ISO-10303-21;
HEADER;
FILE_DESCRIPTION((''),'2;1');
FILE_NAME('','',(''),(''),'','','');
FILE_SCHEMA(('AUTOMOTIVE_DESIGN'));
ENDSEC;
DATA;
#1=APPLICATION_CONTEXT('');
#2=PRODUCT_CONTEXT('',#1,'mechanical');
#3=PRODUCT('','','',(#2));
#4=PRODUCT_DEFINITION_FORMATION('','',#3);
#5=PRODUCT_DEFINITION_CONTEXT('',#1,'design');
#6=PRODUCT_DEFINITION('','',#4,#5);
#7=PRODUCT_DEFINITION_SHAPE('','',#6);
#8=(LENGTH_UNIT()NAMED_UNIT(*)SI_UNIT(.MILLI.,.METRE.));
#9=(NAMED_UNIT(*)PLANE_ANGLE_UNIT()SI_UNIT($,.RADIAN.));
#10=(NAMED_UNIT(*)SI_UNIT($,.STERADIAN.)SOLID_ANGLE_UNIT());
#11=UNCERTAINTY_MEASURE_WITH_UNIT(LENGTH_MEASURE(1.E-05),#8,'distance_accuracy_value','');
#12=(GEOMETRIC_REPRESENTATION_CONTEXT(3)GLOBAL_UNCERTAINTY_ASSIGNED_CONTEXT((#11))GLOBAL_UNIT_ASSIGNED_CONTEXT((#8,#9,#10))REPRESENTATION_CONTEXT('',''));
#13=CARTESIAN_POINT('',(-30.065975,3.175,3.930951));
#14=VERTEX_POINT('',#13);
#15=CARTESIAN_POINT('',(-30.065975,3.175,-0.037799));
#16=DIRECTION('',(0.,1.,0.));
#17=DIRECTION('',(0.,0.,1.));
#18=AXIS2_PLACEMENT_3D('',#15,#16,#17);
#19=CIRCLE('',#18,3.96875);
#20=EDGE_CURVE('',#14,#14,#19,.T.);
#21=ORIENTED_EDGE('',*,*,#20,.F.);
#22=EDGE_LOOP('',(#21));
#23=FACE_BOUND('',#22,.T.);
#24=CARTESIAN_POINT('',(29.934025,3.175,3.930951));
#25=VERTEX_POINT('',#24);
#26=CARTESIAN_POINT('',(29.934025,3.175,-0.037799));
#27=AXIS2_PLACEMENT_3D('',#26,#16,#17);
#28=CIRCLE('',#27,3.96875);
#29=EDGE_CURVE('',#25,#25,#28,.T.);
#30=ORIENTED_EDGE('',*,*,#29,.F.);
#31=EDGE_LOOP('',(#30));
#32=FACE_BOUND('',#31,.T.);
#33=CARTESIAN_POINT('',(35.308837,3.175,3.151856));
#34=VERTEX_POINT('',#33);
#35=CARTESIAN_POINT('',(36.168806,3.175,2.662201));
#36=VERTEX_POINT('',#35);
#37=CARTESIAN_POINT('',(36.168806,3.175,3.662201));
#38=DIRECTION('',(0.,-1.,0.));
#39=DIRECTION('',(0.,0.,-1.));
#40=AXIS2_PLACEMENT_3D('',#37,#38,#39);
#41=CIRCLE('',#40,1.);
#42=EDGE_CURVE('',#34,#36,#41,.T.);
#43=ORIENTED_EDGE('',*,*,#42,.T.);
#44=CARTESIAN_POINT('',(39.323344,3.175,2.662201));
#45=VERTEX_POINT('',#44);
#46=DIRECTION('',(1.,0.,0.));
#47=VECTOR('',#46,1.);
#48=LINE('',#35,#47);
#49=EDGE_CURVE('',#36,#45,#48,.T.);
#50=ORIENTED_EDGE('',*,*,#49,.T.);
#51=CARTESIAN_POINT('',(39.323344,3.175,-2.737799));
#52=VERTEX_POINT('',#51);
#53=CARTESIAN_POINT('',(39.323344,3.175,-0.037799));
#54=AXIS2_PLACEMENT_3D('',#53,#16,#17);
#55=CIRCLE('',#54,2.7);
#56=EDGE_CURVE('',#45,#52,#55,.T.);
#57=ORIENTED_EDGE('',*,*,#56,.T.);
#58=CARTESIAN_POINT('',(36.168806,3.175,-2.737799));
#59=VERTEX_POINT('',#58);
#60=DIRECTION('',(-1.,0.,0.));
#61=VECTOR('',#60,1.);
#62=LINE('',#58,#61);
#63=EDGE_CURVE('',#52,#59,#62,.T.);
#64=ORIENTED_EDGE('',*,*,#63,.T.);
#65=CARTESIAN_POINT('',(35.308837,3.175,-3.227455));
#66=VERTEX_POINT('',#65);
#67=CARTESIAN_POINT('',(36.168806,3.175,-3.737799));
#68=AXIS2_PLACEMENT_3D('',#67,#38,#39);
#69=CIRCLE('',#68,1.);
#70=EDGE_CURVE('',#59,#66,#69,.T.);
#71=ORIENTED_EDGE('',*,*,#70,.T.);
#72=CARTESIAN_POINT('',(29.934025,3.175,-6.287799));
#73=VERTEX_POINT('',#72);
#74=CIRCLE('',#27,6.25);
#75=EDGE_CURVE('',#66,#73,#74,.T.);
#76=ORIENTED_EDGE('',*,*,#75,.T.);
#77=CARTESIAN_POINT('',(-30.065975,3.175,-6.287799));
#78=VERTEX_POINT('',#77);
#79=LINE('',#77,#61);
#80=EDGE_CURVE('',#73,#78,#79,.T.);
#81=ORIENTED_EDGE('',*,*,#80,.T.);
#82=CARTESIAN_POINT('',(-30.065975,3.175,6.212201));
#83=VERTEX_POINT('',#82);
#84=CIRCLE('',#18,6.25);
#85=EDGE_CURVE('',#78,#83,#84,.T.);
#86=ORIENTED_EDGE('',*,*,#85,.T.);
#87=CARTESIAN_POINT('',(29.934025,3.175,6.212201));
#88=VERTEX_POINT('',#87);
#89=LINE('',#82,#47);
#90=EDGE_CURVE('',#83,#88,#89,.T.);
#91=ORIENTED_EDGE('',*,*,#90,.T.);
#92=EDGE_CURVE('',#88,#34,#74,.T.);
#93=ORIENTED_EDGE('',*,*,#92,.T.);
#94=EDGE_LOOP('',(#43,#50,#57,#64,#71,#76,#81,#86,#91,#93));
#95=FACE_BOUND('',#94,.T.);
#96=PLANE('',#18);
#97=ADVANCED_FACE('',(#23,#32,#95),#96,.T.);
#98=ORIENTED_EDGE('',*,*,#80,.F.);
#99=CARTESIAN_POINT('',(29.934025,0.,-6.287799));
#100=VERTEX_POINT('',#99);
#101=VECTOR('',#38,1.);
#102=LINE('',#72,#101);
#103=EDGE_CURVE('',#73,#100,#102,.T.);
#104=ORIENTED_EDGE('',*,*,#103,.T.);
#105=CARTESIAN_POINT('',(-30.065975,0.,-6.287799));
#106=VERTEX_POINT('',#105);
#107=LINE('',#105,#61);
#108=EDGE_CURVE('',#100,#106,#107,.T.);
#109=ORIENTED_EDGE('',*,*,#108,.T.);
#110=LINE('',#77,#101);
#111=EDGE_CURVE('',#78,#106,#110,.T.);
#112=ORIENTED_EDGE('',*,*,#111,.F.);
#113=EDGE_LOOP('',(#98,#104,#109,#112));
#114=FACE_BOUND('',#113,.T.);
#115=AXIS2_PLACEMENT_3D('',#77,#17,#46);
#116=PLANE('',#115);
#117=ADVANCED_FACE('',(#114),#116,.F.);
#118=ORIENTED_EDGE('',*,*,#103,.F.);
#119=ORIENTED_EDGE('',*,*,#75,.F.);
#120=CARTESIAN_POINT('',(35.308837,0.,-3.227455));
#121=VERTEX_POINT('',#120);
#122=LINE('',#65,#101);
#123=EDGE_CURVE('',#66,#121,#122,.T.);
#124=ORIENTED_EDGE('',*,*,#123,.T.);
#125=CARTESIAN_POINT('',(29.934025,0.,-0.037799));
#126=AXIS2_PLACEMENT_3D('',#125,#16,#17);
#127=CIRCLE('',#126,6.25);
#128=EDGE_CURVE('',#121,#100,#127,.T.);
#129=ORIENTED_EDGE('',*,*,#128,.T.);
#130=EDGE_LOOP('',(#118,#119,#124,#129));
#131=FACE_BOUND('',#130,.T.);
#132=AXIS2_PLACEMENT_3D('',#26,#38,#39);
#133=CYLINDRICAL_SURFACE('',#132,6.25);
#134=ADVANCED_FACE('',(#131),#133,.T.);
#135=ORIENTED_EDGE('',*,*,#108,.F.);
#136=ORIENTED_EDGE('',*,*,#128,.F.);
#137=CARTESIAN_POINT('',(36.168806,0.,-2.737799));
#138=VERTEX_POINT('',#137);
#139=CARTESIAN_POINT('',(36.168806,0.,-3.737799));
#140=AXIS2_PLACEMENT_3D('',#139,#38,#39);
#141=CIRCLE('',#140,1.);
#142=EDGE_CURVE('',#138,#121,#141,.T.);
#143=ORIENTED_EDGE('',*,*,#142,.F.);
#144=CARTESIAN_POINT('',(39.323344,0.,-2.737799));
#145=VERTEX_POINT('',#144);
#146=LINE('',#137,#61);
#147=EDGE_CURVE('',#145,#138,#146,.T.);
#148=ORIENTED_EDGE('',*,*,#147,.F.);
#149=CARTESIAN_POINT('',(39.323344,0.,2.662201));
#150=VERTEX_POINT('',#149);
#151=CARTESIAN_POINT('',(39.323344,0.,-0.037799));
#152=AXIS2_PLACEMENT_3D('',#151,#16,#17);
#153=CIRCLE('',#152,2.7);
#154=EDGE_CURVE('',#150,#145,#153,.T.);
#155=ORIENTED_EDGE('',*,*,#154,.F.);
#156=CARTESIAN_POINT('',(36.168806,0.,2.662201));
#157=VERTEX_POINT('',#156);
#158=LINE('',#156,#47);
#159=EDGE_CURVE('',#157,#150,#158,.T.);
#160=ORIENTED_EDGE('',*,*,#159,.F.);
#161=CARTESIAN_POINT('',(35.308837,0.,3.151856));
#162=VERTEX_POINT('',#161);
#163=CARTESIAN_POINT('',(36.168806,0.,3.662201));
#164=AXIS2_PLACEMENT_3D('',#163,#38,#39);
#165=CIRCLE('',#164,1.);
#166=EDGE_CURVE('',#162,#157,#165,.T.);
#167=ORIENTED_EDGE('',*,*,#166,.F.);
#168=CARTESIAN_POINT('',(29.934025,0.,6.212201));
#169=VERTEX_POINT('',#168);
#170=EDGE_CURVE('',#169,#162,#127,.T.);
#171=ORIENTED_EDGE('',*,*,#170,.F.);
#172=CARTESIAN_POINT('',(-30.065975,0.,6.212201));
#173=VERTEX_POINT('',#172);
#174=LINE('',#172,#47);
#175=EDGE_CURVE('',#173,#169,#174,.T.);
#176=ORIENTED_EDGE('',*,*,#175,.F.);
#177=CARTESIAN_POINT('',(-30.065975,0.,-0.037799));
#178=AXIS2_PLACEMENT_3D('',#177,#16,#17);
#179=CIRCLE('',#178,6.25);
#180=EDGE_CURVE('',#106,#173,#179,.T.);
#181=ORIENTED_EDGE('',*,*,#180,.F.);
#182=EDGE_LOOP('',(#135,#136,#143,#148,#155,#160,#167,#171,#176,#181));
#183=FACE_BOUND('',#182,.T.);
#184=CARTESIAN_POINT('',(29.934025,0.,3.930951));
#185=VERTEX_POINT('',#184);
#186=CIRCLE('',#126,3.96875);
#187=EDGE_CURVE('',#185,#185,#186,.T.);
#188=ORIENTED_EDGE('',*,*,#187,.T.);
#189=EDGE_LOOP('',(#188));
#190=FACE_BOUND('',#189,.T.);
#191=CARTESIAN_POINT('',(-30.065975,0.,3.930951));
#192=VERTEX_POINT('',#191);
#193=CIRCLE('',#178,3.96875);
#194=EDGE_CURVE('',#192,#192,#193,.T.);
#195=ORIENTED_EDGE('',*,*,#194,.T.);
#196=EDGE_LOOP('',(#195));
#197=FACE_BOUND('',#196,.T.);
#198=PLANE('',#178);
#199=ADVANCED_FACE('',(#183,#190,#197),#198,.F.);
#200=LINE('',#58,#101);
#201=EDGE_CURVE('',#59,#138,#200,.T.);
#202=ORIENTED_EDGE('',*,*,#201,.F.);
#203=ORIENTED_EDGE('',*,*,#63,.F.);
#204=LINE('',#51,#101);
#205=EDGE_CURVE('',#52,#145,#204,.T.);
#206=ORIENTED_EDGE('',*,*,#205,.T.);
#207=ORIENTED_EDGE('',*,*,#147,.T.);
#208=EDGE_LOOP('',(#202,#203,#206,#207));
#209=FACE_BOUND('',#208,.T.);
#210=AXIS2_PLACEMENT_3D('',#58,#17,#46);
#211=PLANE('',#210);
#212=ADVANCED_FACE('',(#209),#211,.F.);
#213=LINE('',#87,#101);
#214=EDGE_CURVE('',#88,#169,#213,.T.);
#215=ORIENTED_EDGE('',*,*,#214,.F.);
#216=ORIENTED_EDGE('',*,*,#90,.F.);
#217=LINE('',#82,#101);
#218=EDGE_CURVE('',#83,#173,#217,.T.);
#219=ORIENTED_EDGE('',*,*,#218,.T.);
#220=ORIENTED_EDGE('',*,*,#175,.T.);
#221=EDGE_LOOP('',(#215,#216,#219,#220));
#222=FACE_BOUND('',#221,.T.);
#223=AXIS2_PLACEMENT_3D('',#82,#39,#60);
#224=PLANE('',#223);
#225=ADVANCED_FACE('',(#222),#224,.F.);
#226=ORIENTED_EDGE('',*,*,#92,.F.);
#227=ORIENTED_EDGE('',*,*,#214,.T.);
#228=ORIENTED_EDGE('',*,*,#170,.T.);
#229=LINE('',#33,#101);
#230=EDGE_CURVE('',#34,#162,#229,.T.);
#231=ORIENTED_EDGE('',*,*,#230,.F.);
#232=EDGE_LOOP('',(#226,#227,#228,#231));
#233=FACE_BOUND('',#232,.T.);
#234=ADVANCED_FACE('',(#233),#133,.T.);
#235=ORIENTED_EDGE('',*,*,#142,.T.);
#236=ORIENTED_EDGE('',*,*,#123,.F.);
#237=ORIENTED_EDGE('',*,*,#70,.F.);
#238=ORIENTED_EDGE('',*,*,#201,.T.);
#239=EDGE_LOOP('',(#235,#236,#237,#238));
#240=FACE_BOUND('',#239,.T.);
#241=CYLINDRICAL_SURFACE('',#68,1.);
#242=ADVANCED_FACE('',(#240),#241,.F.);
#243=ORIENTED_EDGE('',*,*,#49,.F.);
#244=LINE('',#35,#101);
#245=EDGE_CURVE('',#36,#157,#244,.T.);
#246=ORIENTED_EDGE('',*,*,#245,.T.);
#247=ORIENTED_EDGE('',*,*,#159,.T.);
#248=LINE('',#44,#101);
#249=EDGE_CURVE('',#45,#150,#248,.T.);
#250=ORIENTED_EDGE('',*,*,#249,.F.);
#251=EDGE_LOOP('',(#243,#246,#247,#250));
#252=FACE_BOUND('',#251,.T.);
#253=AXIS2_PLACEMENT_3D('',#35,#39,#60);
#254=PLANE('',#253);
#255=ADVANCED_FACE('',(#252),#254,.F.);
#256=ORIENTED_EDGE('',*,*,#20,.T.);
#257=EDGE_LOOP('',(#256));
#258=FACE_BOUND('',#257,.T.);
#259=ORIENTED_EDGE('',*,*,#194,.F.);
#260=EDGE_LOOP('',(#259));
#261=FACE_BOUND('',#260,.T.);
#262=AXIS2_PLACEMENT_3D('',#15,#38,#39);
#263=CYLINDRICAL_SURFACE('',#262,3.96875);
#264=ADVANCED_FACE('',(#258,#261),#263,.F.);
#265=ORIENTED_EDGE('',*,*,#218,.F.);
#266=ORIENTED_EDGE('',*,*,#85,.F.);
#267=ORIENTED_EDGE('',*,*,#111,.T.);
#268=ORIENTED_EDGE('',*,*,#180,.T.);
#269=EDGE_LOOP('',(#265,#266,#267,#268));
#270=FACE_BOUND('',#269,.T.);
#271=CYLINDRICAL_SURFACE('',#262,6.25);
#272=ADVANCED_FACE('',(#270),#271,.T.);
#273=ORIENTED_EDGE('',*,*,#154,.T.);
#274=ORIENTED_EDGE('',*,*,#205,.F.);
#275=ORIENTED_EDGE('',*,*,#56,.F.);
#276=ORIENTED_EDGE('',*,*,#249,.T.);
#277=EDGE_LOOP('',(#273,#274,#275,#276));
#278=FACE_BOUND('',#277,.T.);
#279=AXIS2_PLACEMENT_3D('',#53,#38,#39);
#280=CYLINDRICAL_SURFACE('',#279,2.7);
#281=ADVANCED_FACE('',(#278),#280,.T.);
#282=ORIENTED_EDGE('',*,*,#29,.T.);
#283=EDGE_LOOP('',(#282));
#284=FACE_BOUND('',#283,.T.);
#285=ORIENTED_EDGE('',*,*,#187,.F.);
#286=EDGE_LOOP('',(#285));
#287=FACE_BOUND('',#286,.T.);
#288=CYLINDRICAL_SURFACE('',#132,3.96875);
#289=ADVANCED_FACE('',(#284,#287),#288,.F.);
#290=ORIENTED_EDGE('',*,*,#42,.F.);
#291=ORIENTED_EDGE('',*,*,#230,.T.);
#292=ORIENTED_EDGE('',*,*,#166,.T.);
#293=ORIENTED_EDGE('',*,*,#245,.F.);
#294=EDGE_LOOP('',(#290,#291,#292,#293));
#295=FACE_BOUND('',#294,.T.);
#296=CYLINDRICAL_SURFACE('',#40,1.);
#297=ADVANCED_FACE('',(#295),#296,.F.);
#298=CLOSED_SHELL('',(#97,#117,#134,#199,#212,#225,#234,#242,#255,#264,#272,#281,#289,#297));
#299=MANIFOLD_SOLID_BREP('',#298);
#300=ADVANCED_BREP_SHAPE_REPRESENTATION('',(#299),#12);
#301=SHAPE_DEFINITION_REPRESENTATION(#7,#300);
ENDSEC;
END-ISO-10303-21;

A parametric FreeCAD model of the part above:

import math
import FreeCAD as App
import Part
import Sketcher
from FreeCAD import Vector
Q = App.Units.Quantity

doc = App.newDocument("Part")
body = doc.addObject("PartDesign::Body", "Body")

# Sketch on XZ plane
sketch1 = body.newObject("Sketcher::SketchObject", "Sketch")
sketch1.AttachmentSupport = (doc.getObject("XZ_Plane"), [""])
sketch1.MapMode = "FlatFace"
sketch1.addGeometry(Part.LineSegment(Vector(29.934025, -6.287799, 0), Vector(-30.065975, -6.287799, 0)), False)
sketch1.addGeometry(Part.ArcOfCircle(Part.Circle(Vector(-30.065975, -0.037799, 0), Vector(0, 0, 1), 6.25), math.radians(90), math.radians(270)), False)
sketch1.addGeometry(Part.LineSegment(Vector(-30.065975, 6.212201, 0), Vector(29.934025, 6.212201, 0)), False)
sketch1.addGeometry(Part.ArcOfCircle(Part.Circle(Vector(29.934025, -0.037799, 0), Vector(0, 0, 1), 6.25), math.radians(30.686801), math.radians(90)), False)
sketch1.addGeometry(Part.ArcOfCircle(Part.Circle(Vector(36.168806, 3.662201, 0), Vector(0, 0, 1), 1), math.radians(-149.313199), math.radians(-90)), False)
sketch1.addGeometry(Part.LineSegment(Vector(36.168806, 2.662201, 0), Vector(39.323344, 2.662201, 0)), False)
sketch1.addGeometry(Part.ArcOfCircle(Part.Circle(Vector(39.323344, -0.037799, 0), Vector(0, 0, 1), 2.7), math.radians(-90), math.radians(90)), False)
sketch1.addGeometry(Part.LineSegment(Vector(39.323344, -2.737799, 0), Vector(36.168806, -2.737799, 0)), False)
sketch1.addGeometry(Part.ArcOfCircle(Part.Circle(Vector(36.168806, -3.737799, 0), Vector(0, 0, 1), 1), math.radians(90), math.radians(149.313199)), False)
sketch1.addGeometry(Part.ArcOfCircle(Part.Circle(Vector(29.934025, -0.037799, 0), Vector(0, 0, 1), 6.25), math.radians(-90), math.radians(-30.686801)), False)
sketch1.addGeometry(Part.Circle(Vector(29.934025, -0.037799, 0), Vector(0, 0, 1), 3.96875), False)
sketch1.addGeometry(Part.Circle(Vector(-30.065975, -0.037799, 0), Vector(0, 0, 1), 3.96875), False)
sketch1.addConstraint(Sketcher.Constraint("Tangent", 0, 2, 1, 2))
sketch1.addConstraint(Sketcher.Constraint("Tangent", 1, 1, 2, 1))
sketch1.addConstraint(Sketcher.Constraint("Tangent", 2, 2, 3, 2))
sketch1.addConstraint(Sketcher.Constraint("Tangent", 3, 1, 4, 1))
sketch1.addConstraint(Sketcher.Constraint("Tangent", 4, 2, 5, 1))
sketch1.addConstraint(Sketcher.Constraint("Tangent", 5, 2, 6, 2))
sketch1.addConstraint(Sketcher.Constraint("Tangent", 6, 1, 7, 1))
sketch1.addConstraint(Sketcher.Constraint("Tangent", 7, 2, 8, 1))
sketch1.addConstraint(Sketcher.Constraint("Tangent", 8, 2, 9, 2))
sketch1.addConstraint(Sketcher.Constraint("Tangent", 9, 1, 0, 1))
sketch1.addConstraint(Sketcher.Constraint("Horizontal", 0))
sketch1.addConstraint(Sketcher.Constraint("Horizontal", 2))
sketch1.addConstraint(Sketcher.Constraint("Horizontal", 5))
sketch1.addConstraint(Sketcher.Constraint("Horizontal", 7))
sketch1.addConstraint(Sketcher.Constraint("Coincident", 9, 3, 3, 3))
sketch1.addConstraint(Sketcher.Constraint("Coincident", 10, 3, 3, 3))
sketch1.addConstraint(Sketcher.Constraint("Coincident", 11, 3, 1, 3))
sketch1.addConstraint(Sketcher.Constraint("Equal", 1, 3))
sketch1.addConstraint(Sketcher.Constraint("Equal", 4, 8))
sketch1.addConstraint(Sketcher.Constraint("Equal", 10, 11))
sketch1.addConstraint(Sketcher.Constraint("Horizontal", 3, 3, 6, 3))
sketch1.addConstraint(Sketcher.Constraint("Radius", 4, Q("1 mm")))
sketch1.addConstraint(Sketcher.Constraint("Radius", 6, Q("2.7 mm")))
sketch1.addConstraint(Sketcher.Constraint("DistanceX", 0, 2, 0, 1, Q("60 mm")))
sketch1.addConstraint(Sketcher.Constraint("Radius", 1, Q("6.25 mm")))
sketch1.addConstraint(Sketcher.Constraint("Diameter", 10, Q("7.9375 mm")))
sketch1.addConstraint(Sketcher.Constraint("DistanceY", 1, 3, -1, 1, Q("0.037799 mm")))
sketch1.addConstraint(Sketcher.Constraint("DistanceX", 5, 1, 5, 2, Q("3.154537 mm")))
sketch1.addConstraint(Sketcher.Constraint("DistanceX", 1, 3, -1, 1, Q("30.065975 mm")))
pad1 = body.newObject("PartDesign::Pad", "Pad")
pad1.Profile = sketch1
pad1.Length = 3.175
pad1.Reversed = True

doc.recompute()
